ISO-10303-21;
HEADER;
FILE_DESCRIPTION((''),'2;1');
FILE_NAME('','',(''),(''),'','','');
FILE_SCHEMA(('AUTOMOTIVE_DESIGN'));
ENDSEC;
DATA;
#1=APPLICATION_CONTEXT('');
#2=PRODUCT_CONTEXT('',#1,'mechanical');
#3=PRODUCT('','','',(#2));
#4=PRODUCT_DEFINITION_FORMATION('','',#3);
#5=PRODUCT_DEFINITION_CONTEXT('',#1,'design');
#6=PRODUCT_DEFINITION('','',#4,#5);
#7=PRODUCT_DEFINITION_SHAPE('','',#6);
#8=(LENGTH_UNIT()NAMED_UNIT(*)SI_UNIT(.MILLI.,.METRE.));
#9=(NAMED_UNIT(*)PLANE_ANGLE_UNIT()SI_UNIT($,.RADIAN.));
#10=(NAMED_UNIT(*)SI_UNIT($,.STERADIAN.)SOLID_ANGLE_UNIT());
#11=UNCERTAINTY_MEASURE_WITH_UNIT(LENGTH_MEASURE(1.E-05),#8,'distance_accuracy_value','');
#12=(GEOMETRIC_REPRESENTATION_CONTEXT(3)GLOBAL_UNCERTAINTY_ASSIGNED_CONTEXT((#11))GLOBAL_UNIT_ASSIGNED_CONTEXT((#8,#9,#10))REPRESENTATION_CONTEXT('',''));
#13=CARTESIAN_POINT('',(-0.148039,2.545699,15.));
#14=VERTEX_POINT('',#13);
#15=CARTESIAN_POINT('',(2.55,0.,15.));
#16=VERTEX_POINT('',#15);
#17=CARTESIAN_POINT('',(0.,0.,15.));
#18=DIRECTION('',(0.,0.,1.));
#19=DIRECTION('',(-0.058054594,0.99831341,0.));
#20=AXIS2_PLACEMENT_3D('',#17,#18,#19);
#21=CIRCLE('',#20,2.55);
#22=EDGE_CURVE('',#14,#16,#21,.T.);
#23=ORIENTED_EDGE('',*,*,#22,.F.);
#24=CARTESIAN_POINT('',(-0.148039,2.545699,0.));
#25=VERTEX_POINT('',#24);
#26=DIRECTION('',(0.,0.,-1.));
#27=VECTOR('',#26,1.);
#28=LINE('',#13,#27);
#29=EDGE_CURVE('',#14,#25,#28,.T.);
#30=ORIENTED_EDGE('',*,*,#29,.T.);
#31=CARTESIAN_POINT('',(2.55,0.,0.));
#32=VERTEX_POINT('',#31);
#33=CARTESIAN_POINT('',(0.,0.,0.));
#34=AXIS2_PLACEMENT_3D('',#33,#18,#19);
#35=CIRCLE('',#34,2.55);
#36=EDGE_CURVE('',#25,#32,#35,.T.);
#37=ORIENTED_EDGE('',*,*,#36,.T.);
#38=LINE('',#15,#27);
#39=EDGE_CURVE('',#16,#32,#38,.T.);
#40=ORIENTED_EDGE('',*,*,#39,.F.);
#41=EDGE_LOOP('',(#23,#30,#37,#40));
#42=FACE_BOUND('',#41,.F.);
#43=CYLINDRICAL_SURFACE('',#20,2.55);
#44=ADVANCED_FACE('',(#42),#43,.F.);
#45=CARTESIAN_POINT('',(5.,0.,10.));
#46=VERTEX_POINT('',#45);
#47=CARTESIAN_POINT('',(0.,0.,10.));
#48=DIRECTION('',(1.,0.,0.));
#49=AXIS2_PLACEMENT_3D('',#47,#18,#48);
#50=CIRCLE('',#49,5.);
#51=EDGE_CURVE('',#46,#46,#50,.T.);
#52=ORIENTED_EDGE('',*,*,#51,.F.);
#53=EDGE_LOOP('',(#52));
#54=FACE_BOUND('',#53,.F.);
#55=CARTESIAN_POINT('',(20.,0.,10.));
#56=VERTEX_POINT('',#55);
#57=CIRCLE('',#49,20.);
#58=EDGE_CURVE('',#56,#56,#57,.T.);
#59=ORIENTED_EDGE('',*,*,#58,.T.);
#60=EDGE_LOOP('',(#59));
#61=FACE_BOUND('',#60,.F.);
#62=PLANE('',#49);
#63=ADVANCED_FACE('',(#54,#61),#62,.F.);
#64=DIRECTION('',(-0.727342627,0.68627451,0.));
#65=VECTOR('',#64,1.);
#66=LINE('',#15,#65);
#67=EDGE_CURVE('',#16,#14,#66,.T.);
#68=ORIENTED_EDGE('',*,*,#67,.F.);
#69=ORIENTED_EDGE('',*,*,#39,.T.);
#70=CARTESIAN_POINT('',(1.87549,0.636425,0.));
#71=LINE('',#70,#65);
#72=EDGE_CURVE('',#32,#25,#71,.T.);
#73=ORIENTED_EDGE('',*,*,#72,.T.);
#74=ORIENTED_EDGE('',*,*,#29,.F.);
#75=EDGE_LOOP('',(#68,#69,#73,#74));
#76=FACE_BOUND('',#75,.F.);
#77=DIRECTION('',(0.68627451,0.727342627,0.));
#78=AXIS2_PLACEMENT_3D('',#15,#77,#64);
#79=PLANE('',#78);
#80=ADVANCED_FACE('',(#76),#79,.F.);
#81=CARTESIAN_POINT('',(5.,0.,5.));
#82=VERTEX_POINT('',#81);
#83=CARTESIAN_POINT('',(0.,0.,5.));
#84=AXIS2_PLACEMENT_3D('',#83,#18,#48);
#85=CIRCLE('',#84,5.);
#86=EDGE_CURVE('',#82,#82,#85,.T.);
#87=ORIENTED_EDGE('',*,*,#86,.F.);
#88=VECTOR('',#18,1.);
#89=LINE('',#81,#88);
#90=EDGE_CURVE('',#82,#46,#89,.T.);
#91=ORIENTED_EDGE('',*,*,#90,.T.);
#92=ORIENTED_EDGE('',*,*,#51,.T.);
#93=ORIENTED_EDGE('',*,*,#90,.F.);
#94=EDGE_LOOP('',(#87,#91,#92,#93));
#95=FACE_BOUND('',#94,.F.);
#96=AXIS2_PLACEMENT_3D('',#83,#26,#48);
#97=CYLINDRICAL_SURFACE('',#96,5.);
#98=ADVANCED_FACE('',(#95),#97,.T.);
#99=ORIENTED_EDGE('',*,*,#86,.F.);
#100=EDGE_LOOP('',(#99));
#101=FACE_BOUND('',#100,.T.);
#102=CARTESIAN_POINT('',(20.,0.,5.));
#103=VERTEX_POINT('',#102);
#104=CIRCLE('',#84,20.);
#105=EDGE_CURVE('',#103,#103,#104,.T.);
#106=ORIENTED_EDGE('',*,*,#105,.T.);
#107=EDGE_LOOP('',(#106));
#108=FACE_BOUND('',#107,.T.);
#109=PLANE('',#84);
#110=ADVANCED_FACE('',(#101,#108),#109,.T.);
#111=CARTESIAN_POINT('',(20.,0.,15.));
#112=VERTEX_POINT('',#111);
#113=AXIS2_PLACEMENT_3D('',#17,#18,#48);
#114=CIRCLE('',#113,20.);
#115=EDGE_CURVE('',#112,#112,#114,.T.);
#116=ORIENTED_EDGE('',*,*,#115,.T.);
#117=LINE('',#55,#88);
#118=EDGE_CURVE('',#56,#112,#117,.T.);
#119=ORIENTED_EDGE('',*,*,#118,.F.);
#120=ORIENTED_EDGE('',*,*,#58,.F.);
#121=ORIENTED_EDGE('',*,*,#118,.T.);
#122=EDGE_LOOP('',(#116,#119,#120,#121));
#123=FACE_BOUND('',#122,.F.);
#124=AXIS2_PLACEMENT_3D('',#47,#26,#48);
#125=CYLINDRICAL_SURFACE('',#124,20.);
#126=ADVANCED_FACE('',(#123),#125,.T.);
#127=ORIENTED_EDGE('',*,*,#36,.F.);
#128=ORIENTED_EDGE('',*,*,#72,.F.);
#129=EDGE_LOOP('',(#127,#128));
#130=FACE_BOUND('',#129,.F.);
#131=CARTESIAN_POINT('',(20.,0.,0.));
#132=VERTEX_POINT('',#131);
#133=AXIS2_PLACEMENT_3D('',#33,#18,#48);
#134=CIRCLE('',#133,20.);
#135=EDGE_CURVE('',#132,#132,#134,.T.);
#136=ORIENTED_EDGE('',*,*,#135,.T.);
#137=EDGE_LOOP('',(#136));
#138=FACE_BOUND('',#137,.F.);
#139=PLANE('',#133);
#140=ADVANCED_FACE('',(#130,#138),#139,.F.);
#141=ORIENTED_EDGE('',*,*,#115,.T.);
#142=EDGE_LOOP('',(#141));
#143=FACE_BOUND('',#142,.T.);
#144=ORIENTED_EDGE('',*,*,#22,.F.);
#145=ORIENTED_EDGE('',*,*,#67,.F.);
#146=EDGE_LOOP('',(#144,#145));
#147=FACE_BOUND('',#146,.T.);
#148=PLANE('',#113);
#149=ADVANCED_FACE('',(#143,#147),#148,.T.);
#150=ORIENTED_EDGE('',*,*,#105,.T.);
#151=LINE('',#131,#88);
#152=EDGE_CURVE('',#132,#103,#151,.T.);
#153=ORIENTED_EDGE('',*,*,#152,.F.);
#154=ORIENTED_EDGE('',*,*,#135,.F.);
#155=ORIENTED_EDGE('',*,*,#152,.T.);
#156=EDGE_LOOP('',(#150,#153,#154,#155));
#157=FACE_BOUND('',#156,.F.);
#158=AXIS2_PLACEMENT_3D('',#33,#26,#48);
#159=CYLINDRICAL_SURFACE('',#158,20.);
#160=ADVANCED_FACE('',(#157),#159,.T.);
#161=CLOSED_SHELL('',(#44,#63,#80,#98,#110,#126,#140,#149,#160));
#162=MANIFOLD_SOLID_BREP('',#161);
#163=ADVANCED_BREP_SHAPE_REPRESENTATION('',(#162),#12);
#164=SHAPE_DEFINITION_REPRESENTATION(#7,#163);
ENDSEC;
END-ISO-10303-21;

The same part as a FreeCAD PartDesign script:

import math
import FreeCAD as App
import Part
import Sketcher

V = App.Vector
Q = App.Units.Quantity

doc = App.newDocument("Part")
body = doc.addObject("PartDesign::Body", "Body")

# Sketch on XY plane
sketch1 = doc.addObject("Sketcher::SketchObject", "Sketch")
body.addObject(sketch1)
sketch1.AttachmentSupport = (doc.XY_Plane, [""])
sketch1.MapMode = "FlatFace"
sketch1.addGeometry(Part.Circle(V(0, 0, 0), V(0, 0, 1), 20), False)
sketch1.addConstraint(Sketcher.Constraint("Coincident", 0, 3, -1, 1))
sketch1.addConstraint(Sketcher.Constraint("Diameter", 0, Q("40 mm")))
pad1 = doc.addObject("PartDesign::Pad", "Pad")
body.addObject(pad1)
pad1.Profile = sketch1
pad1.Length = 5

# Sketch on XY plane
sketch2 = doc.addObject("Sketcher::SketchObject", "Sketch001")
body.addObject(sketch2)
sketch2.AttachmentSupport = (doc.XY_Plane, [""])
sketch2.MapMode = "FlatFace"
sketch2.AttachmentOffset = App.Placement(V(0, 0, 5), App.Rotation())
sketch2.addGeometry(Part.Circle(V(0, 0, 0), V(0, 0, 1), 5), False)
sketch2.addConstraint(Sketcher.Constraint("Coincident", 0, 3, -1, 1))
sketch2.addConstraint(Sketcher.Constraint("Diameter", 0, Q("10 mm")))
pad2 = doc.addObject("PartDesign::Pad", "Pad001")
body.addObject(pad2)
pad2.Profile = sketch2
pad2.Length = 5

# Sketch on XY plane
sketch3 = doc.addObject("Sketcher::SketchObject", "Sketch002")
body.addObject(sketch3)
sketch3.AttachmentSupport = (doc.XY_Plane, [""])
sketch3.MapMode = "FlatFace"
sketch3.AttachmentOffset = App.Placement(V(0, 0, 10), App.Rotation())
sketch3.addGeometry(Part.Circle(V(0, 0, 0), V(0, 0, 1), 20), False)
sketch3.addConstraint(Sketcher.Constraint("Coincident", 0, 3, -1, 1))
sketch3.addConstraint(Sketcher.Constraint("Diameter", 0, Q("40 mm")))
pad3 = doc.addObject("PartDesign::Pad", "Pad002")
body.addObject(pad3)
pad3.Profile = sketch3
pad3.Length = 5

# Sketch on XY plane
sketch4 = doc.addObject("Sketcher::SketchObject", "Sketch003")
body.addObject(sketch4)
sketch4.AttachmentSupport = (doc.XY_Plane, [""])
sketch4.MapMode = "FlatFace"
sketch4.AttachmentOffset = App.Placement(V(0, 0, 15), App.Rotation())
sketch4.addGeometry(Part.ArcOfCircle(Part.Circle(V(0, 0, 0), V(0, 0, 1), 2.5), math.radians(93), math.radians(360)), False)
sketch4.addGeometry(Part.LineSegment(V(2.5, 0, 0), V(-0.1, 2.5, 0)), False)
sketch4.addConstraint(Sketcher.Constraint("Coincident", 0, 1, 1, 2))
sketch4.addConstraint(Sketcher.Constraint("Coincident", 1, 1, 0, 2))
sketch4.addConstraint(Sketcher.Constraint("Coincident", 0, 3, -1, 1))
sketch4.addConstraint(Sketcher.Constraint("PointOnObject", 1, 1, -1))
sketch4.addConstraint(Sketcher.Constraint("Radius", 0, Q("2.55 mm")))
sketch4.addConstraint(Sketcher.Constraint("DistanceY", -1, 1, 0, 1, Q("2.545699 mm")))
pocket1 = doc.addObject("PartDesign::Pocket", "Pocket")
body.addObject(pocket1)
pocket1.Profile = sketch4
pocket1.Length = 25

doc.recompute()
